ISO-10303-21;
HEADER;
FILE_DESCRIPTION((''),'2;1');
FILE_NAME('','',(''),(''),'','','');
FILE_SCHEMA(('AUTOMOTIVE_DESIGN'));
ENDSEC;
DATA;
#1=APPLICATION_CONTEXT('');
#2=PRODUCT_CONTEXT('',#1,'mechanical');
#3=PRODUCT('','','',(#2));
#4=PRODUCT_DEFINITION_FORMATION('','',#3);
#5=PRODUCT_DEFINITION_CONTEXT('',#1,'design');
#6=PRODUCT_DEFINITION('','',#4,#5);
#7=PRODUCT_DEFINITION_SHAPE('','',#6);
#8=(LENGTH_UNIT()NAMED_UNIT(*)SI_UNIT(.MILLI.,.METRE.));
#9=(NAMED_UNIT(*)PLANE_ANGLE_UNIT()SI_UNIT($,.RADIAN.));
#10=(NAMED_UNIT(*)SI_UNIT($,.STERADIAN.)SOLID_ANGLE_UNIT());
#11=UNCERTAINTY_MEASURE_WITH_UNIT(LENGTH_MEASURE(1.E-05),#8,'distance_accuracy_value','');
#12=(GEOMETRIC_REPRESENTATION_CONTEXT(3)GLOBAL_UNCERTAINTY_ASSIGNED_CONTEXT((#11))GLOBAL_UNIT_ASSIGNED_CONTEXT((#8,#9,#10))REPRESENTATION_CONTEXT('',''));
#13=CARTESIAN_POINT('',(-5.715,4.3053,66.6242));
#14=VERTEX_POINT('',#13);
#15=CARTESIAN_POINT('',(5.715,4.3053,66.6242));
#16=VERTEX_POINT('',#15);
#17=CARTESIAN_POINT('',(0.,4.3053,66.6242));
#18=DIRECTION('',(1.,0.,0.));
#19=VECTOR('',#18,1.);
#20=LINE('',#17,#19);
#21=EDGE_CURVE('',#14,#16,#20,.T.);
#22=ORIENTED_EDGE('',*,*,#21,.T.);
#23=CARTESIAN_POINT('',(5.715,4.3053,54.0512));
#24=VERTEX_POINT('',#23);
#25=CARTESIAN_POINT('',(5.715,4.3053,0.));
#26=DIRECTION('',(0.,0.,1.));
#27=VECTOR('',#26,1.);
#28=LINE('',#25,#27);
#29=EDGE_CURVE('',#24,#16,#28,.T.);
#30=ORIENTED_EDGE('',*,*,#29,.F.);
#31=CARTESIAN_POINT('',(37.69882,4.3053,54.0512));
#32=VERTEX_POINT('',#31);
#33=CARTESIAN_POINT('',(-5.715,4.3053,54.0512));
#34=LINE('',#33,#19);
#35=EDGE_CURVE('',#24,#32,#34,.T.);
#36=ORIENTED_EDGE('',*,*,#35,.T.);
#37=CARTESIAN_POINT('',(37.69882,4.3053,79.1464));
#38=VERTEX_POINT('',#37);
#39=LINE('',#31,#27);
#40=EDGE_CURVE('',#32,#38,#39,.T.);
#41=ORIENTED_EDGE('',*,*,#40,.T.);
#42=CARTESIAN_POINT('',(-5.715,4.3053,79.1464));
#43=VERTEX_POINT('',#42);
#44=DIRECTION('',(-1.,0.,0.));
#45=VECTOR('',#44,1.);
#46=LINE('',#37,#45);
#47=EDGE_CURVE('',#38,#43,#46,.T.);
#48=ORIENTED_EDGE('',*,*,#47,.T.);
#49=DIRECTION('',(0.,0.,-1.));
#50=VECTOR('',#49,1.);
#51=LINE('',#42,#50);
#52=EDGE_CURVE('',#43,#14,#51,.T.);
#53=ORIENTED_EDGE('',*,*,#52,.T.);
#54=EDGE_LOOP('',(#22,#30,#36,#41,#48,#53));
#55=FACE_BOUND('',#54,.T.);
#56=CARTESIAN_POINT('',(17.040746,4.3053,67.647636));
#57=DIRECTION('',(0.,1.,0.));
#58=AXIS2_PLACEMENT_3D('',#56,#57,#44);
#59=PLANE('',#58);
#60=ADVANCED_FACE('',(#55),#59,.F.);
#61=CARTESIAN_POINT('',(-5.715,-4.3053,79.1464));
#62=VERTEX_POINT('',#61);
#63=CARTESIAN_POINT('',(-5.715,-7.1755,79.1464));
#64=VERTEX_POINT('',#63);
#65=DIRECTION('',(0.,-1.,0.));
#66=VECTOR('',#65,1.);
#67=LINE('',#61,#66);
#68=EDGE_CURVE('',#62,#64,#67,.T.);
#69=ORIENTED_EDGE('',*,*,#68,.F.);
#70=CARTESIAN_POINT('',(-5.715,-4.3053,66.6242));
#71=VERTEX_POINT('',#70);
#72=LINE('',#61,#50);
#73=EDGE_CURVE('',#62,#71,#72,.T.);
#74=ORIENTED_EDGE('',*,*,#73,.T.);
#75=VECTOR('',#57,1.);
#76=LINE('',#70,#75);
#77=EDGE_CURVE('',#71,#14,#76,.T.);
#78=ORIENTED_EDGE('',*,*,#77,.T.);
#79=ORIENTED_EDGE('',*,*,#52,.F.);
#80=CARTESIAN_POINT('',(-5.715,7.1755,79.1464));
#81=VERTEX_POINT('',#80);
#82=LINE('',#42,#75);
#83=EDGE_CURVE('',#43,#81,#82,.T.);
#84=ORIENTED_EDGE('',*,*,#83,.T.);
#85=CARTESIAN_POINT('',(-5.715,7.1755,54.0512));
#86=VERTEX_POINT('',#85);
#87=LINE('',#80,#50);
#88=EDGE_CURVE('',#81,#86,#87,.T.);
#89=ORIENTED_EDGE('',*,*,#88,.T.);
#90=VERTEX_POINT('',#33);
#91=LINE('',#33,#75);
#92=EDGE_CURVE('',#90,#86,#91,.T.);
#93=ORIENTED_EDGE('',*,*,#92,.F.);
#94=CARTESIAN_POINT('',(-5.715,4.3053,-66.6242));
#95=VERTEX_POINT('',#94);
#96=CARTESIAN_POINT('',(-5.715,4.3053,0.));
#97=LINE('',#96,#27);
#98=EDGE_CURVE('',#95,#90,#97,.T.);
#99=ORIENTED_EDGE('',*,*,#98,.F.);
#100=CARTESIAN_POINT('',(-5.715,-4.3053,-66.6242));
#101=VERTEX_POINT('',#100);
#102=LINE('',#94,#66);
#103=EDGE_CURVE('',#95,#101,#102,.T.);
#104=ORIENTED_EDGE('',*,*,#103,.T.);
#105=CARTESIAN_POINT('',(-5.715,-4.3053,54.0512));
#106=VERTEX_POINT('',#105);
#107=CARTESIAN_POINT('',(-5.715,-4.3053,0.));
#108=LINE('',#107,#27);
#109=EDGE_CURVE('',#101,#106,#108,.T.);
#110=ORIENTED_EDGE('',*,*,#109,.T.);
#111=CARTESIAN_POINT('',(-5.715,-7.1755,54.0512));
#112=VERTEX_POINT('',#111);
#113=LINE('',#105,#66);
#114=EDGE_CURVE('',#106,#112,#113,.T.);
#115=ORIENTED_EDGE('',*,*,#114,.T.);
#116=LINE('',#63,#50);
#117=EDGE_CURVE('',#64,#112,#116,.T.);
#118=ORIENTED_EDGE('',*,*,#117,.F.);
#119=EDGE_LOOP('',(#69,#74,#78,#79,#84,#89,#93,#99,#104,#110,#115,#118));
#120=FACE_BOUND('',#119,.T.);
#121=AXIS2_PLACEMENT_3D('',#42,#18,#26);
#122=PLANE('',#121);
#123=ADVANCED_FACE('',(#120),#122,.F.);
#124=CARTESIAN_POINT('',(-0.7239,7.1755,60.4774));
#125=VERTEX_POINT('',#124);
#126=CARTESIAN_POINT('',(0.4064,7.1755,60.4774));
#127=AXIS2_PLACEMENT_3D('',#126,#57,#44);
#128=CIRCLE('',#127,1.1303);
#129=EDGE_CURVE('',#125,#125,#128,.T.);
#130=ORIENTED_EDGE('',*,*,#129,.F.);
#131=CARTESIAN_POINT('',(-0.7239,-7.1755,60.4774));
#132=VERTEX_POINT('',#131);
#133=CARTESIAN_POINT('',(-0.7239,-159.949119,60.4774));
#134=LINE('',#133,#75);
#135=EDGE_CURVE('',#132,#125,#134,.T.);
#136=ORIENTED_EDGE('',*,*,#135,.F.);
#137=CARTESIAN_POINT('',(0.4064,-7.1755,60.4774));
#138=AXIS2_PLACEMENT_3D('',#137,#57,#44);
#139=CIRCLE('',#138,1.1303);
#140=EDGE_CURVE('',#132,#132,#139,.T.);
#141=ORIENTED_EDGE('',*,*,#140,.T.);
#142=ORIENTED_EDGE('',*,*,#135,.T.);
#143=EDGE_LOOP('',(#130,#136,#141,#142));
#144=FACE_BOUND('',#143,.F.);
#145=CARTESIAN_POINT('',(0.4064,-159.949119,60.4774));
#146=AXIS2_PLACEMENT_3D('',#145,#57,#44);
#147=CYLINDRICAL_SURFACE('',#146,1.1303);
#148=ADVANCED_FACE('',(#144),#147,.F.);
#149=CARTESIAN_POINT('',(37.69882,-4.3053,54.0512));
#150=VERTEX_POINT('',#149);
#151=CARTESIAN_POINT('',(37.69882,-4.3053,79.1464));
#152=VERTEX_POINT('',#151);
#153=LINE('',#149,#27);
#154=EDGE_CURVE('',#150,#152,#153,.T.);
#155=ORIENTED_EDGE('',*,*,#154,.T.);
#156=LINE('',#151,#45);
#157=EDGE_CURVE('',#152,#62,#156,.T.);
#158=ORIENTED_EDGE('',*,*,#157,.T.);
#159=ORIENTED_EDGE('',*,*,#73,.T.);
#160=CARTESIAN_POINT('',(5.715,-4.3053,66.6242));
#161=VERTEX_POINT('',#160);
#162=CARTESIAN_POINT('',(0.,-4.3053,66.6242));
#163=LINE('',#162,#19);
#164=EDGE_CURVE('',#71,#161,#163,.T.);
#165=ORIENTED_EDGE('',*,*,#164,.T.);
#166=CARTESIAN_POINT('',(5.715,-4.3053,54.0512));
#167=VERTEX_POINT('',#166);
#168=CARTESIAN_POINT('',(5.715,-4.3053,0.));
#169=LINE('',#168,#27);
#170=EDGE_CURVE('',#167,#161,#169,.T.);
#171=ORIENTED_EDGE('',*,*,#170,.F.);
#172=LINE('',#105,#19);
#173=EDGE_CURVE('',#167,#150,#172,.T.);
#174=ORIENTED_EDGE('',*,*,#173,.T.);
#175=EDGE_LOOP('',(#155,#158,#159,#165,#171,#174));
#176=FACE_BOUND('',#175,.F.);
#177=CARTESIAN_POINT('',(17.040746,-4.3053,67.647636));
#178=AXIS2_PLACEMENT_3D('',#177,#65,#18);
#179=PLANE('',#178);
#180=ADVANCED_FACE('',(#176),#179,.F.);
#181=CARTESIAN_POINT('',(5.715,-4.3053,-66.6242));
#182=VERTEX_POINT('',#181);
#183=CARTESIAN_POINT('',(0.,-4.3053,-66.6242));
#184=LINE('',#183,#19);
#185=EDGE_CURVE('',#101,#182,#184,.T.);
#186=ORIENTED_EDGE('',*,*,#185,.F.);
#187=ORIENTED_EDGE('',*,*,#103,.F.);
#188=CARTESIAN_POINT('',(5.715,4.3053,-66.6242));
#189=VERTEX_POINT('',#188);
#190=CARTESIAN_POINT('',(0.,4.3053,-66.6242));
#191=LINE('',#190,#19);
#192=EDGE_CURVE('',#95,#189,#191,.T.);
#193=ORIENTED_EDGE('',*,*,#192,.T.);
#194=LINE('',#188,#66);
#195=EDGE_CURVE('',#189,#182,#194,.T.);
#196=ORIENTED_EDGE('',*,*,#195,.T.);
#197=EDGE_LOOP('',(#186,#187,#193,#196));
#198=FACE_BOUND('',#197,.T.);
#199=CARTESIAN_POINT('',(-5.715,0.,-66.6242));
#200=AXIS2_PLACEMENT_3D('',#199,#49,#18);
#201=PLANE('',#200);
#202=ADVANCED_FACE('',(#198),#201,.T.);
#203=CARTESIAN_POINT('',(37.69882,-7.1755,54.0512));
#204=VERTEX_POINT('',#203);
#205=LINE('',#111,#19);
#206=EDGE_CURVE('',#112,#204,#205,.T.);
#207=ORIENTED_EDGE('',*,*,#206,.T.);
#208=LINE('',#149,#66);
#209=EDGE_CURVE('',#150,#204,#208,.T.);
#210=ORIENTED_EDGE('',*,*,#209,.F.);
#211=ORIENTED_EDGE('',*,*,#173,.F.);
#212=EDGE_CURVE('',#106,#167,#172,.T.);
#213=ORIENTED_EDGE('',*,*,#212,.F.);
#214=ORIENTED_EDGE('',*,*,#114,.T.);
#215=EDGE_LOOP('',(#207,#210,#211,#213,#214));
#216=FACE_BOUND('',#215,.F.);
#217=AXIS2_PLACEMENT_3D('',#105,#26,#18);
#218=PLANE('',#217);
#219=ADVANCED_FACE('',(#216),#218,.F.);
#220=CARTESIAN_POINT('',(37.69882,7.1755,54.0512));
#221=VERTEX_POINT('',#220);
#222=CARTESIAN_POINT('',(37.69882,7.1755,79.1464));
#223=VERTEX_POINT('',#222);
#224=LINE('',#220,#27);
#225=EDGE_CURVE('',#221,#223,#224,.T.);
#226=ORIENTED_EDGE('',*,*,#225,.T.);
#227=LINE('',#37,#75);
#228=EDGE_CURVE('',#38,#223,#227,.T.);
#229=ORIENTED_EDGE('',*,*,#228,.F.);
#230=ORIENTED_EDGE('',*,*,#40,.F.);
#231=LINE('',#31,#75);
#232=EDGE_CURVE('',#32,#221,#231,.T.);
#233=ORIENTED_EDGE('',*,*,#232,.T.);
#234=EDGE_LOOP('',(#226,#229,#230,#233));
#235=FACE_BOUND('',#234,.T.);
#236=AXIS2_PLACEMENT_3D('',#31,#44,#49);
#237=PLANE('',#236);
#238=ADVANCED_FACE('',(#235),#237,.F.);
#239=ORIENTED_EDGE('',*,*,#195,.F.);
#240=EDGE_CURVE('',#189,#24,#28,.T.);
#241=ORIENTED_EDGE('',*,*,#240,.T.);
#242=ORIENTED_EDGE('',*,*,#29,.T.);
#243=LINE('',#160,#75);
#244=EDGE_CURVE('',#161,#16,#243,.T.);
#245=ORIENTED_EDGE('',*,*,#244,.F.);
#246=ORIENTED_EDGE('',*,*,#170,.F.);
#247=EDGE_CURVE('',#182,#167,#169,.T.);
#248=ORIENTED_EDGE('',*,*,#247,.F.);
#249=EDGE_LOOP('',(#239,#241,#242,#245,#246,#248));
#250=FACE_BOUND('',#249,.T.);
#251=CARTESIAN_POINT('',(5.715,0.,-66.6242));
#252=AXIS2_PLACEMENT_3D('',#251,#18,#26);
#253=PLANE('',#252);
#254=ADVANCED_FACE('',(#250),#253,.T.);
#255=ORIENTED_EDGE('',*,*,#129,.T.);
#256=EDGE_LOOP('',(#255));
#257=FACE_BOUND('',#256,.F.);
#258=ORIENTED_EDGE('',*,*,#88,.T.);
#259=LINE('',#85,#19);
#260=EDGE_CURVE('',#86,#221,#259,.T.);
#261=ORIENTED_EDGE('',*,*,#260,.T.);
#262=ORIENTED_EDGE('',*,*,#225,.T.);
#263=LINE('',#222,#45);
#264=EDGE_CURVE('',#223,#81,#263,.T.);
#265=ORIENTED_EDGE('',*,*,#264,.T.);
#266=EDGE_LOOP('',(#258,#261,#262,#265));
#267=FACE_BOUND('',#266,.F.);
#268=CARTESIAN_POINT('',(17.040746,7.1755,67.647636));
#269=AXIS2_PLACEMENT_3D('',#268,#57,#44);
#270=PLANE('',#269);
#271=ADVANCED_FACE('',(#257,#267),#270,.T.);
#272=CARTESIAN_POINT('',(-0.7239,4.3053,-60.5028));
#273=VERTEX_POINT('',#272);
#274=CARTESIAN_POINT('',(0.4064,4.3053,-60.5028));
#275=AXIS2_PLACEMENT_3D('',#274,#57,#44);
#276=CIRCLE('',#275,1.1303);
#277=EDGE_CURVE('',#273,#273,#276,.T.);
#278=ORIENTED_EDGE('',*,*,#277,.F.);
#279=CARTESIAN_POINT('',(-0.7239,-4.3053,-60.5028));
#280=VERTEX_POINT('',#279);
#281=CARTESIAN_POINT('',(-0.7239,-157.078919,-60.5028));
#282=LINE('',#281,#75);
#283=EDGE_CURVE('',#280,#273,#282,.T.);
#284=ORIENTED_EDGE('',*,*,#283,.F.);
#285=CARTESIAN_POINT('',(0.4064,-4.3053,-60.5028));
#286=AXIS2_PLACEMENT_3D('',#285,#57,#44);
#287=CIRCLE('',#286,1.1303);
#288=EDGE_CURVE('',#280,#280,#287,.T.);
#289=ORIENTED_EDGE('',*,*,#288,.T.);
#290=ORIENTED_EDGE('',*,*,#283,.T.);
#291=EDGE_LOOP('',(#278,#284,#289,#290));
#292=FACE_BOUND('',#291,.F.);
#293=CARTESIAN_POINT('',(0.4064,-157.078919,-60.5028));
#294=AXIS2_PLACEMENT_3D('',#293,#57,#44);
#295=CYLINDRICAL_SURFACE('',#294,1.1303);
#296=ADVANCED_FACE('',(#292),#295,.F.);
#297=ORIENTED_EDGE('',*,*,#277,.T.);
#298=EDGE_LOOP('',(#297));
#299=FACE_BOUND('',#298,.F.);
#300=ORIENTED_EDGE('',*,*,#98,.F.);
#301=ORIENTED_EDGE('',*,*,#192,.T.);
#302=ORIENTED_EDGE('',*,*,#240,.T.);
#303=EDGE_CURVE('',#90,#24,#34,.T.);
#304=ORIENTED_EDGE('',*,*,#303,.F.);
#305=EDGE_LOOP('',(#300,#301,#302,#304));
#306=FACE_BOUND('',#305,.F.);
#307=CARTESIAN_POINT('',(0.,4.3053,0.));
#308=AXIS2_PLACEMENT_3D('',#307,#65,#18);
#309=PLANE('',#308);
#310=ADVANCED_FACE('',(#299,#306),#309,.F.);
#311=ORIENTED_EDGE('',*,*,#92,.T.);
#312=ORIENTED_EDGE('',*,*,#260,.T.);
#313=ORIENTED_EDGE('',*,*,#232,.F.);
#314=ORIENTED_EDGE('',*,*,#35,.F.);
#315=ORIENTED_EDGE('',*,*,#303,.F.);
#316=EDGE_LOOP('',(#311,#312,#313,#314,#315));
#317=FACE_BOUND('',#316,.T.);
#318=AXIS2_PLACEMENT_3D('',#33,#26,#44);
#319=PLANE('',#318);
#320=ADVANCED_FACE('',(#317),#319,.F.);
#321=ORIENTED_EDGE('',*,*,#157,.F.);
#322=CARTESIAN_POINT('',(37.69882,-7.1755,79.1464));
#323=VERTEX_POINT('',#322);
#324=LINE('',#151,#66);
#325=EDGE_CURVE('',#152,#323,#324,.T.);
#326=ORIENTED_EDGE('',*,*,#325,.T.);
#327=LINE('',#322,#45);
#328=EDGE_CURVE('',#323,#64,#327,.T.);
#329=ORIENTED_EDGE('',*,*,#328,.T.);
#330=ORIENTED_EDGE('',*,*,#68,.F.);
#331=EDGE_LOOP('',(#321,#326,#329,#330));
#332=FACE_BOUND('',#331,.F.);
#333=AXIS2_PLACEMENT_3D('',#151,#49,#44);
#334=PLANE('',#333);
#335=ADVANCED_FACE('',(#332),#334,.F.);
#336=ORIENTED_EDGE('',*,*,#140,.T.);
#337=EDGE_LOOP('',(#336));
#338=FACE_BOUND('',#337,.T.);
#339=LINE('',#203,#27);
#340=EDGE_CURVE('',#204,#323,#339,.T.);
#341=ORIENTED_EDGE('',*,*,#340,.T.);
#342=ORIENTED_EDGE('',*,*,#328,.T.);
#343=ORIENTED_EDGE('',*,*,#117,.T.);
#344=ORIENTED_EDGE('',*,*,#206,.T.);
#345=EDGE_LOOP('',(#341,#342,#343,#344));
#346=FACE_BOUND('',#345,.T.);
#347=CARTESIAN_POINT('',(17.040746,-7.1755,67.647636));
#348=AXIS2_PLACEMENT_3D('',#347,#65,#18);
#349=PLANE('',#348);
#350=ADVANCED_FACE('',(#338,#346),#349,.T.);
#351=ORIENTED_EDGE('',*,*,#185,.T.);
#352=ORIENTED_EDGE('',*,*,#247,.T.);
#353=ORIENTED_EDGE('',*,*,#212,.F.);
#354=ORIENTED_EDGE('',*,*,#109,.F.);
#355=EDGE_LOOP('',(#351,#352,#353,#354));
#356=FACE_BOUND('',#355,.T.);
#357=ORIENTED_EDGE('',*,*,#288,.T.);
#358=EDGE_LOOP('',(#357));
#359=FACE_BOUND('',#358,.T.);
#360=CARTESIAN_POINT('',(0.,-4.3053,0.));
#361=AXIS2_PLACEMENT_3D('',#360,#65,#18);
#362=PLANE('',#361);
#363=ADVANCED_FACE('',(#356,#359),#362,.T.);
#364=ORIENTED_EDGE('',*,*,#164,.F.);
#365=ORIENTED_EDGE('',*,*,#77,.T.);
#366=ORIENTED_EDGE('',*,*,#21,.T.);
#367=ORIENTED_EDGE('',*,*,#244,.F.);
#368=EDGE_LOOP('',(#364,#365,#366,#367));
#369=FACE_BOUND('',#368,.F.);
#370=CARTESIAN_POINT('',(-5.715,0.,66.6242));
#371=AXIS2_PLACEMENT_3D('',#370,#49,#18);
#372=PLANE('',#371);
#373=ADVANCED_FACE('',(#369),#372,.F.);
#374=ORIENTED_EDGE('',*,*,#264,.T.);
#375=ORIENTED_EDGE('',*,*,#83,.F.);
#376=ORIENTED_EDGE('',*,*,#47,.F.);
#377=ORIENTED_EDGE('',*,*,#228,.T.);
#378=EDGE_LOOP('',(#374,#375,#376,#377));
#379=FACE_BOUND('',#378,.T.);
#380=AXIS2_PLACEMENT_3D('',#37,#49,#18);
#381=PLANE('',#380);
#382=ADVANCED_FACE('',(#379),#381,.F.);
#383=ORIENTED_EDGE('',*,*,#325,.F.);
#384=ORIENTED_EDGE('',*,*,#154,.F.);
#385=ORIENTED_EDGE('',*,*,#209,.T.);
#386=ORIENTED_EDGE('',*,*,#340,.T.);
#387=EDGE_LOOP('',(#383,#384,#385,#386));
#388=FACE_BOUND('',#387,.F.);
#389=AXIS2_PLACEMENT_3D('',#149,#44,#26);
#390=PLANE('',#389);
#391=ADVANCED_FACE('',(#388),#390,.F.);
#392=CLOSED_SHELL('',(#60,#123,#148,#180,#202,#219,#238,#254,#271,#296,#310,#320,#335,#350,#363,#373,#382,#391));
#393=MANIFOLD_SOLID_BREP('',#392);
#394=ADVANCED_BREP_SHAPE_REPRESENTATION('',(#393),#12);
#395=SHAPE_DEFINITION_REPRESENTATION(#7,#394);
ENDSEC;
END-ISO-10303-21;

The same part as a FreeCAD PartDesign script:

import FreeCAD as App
import Part
import Sketcher
Q = App.Units.Quantity


def add_polygon(sketch, points):
    """Adds a closed chain of lines whose ends are joined by coincident constraints."""
    first, n = sketch.GeometryCount, len(points)
    for a, b in zip(points, points[1:] + points[:1]):
        sketch.addGeometry(Part.LineSegment(App.Vector(*a, 0), App.Vector(*b, 0)), False)
    for i in range(n):
        sketch.addConstraint(Sketcher.Constraint("Coincident", first + i, 2, first + (i + 1) % n, 1))

doc = App.newDocument("Part")
body = doc.addObject("PartDesign::Body", "Body")

# Sketch on XZ plane
sketch1 = doc.addObject("Sketcher::SketchObject", "Sketch")
body.addObject(sketch1)
sketch1.AttachmentSupport = (doc.XZ_Plane, [""])
sketch1.MapMode = "FlatFace"
add_polygon(sketch1, [(-6, 67), (-6, -67), (6, -67), (6, 67)])  # lines 0-3
sketch1.addConstraint(Sketcher.Constraint("Vertical", 0))
sketch1.addConstraint(Sketcher.Constraint("Horizontal", 1))
sketch1.addConstraint(Sketcher.Constraint("Vertical", 2))
sketch1.addConstraint(Sketcher.Constraint("Horizontal", 3))
sketch1.addConstraint(Sketcher.Constraint("Symmetric", 0, 2, 2, 2, -1, 1))
sketch1.addConstraint(Sketcher.Constraint("DistanceX", 1, 1, 1, 2, Q("0.45 in")))
sketch1.addConstraint(Sketcher.Constraint("DistanceY", 0, 2, 0, 1, Q("5.246 in")))
pad1 = doc.addObject("PartDesign::Pad", "Pad")
body.addObject(pad1)
pad1.Profile = sketch1
pad1.Length = Q("0.339 in")
pad1.Midplane = True

# Sketch on XZ plane
sketch2 = doc.addObject("Sketcher::SketchObject", "Sketch001")
body.addObject(sketch2)
sketch2.AttachmentSupport = (doc.XZ_Plane, [""])
sketch2.MapMode = "FlatFace"
sketch2.AttachmentOffset = App.Placement(App.Vector(0, 0, 0.1695 * 25.4), App.Rotation())
add_polygon(sketch2, [(38, 54), (38, 79), (-6, 79), (-6, 54)])  # lines 0-3
sketch2.addConstraint(Sketcher.Constraint("Vertical", 0))
sketch2.addConstraint(Sketcher.Constraint("Horizontal", 1))
sketch2.addConstraint(Sketcher.Constraint("Vertical", 2))
sketch2.addConstraint(Sketcher.Constraint("Horizontal", 3))
sketch2.addConstraint(Sketcher.Constraint("DistanceY", 0, 1, 0, 2, Q("0.988 in")))
sketch2.addConstraint(Sketcher.Constraint("DistanceY", -1, 1, 0, 2, Q("3.116 in")))
sketch2.addConstraint(Sketcher.Constraint("DistanceX", 1, 2, -1, 1, Q("0.225 in")))
sketch2.addConstraint(Sketcher.Constraint("DistanceX", 1, 2, 1, 1, 43.41382))
pad2 = doc.addObject("PartDesign::Pad", "Pad001")
body.addObject(pad2)
pad2.Profile = sketch2
pad2.Length = Q("0.113 in")
body2 = doc.addObject("PartDesign::Body", "Body001")
doc.recompute()

body2.BaseFeature = body
doc.recompute()

mirroring = doc.addObject("Part::Mirroring", "Mirroring")
mirroring.Source = body
mirroring.Base = App.Vector(0, 0, 0)
mirroring.Normal = App.Vector(0, -1, 0)
body3 = doc.addObject("PartDesign::Body", "Body002")
body3.BaseFeature = mirroring
boolean = doc.addObject("PartDesign::Boolean", "Boolean")
body2.addObject(boolean)
boolean.Type = "Fuse"
boolean.addObjects([body3])
doc.recompute()

# Sketch on XZ plane
sketch3 = doc.addObject("Sketcher::SketchObject", "Sketch002")
body2.addObject(sketch3)
sketch3.AttachmentSupport = (doc.getObject("XZ_Plane001"), [""])
sketch3.MapMode = "FlatFace"
sketch3.AttachmentOffset = App.Placement(App.Vector(0, 0, 0.2825 * 25.4), App.Rotation())
sketch3.addGeometry(Part.Circle(App.Vector(0.4, 60.5, 0), App.Vector(0, 0, 1), 1.1), False)
sketch3.addConstraint(Sketcher.Constraint("Diameter", 0, Q("0.089 in")))
sketch3.addConstraint(Sketcher.Constraint("DistanceX", -1, 1, 0, 3, Q("0.016 in")))
sketch3.addConstraint(Sketcher.Constraint("DistanceY", -1, 1, 0, 3, Q("2.381 in")))
doc.recompute()
hole = doc.addObject("PartDesign::Hole", "Hole")
body2.addObject(hole)
hole.Profile = sketch3
hole.ThreadType = "None"
hole.Diameter = Q("0.089 in")
hole.DepthType = "ThroughAll"

# Sketch on XZ plane
sketch4 = doc.addObject("Sketcher::SketchObject", "Sketch003")
body2.addObject(sketch4)
sketch4.AttachmentSupport = (doc.getObject("XZ_Plane001"), [""])
sketch4.MapMode = "FlatFace"
sketch4.AttachmentOffset = App.Placement(App.Vector(0, 0, 0.1695 * 25.4), App.Rotation())
sketch4.addGeometry(Part.Circle(App.Vector(0.4, -60.5, 0), App.Vector(0, 0, 1), 1.1), False)
sketch4.addConstraint(Sketcher.Constraint("Diameter", 0, Q("0.089 in")))
sketch4.addConstraint(Sketcher.Constraint("DistanceX", -1, 1, 0, 3, Q("0.016 in")))
sketch4.addConstraint(Sketcher.Constraint("DistanceY", 0, 3, -1, 1, Q("2.382 in")))
doc.recompute()
hole2 = doc.addObject("PartDesign::Hole", "Hole001")
body2.addObject(hole2)
hole2.Profile = sketch4
hole2.ThreadType = "None"
hole2.Diameter = Q("0.089 in")
hole2.DepthType = "ThroughAll"
mirroring.Visibility = False

doc.recompute()
